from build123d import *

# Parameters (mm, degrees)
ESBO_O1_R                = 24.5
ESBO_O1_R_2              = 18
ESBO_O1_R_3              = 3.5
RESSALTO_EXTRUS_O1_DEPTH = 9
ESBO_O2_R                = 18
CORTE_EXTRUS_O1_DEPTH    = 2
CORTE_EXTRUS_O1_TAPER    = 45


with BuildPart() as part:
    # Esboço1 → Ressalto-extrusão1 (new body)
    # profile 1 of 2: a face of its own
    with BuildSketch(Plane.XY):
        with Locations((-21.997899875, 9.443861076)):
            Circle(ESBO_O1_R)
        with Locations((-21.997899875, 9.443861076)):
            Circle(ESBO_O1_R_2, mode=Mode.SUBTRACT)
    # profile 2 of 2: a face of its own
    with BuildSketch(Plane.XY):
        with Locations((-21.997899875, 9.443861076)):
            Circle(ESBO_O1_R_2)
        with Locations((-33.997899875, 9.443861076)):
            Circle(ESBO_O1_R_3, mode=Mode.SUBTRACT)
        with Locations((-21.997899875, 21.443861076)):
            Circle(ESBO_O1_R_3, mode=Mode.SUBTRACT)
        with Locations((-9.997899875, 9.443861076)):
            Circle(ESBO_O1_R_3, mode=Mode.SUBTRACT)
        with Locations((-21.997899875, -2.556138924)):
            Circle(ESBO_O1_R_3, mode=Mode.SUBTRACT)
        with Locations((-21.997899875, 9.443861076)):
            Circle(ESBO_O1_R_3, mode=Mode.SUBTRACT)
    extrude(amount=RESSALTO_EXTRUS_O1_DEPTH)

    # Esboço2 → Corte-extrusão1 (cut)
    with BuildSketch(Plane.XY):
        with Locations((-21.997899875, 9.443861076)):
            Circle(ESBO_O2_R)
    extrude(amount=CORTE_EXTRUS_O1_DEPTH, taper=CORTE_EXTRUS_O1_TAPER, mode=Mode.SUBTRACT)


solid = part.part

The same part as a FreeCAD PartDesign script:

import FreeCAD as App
import Part
import Sketcher

doc = App.newDocument("Part")
body = doc.addObject("PartDesign::Body", "Body")

# Sketch on XY plane
sketch1 = body.newObject("Sketcher::SketchObject", "Sketch")
sketch1.AttachmentSupport = (doc.getObject("XY_Plane"), [""])
sketch1.MapMode = "FlatFace"
sketch1.addGeometry(Part.Circle(App.Vector(-22, 9.4, 0), App.Vector(0, 0, 1), 24.5), False)
sketch1.addGeometry(Part.Circle(App.Vector(-22, 21.4, 0), App.Vector(0, 0, 1), 3.5), False)
sketch1.addGeometry(Part.Circle(App.Vector(-22, -2.6, 0), App.Vector(0, 0, 1), 3.5), False)
sketch1.addGeometry(Part.Circle(App.Vector(-34, 9.4, 0), App.Vector(0, 0, 1), 3.5), False)
sketch1.addGeometry(Part.Circle(App.Vector(-22, 9.4, 0), App.Vector(0, 0, 1), 3.5), False)
sketch1.addGeometry(Part.Circle(App.Vector(-10, 9.4, 0), App.Vector(0, 0, 1), 3.5), False)
sketch1.addConstraint(Sketcher.Constraint("Coincident", 4, 3, 0, 3))
sketch1.addConstraint(Sketcher.Constraint("Equal", 1, 2))
sketch1.addConstraint(Sketcher.Constraint("Equal", 2, 3))
sketch1.addConstraint(Sketcher.Constraint("Equal", 3, 4))
sketch1.addConstraint(Sketcher.Constraint("Equal", 4, 5))
sketch1.addConstraint(Sketcher.Constraint("Horizontal", 0, 3, 3, 3))
sketch1.addConstraint(Sketcher.Constraint("Horizontal", 4, 3, 5, 3))
sketch1.addConstraint(Sketcher.Constraint("Vertical", 0, 3, 1, 3))
sketch1.addConstraint(Sketcher.Constraint("Vertical", 1, 3, 2, 3))
sketch1.addConstraint(Sketcher.Constraint("Diameter", 0, 49.0))
sketch1.addConstraint(Sketcher.Constraint("Diameter", 1, 7.0))
sketch1.addConstraint(Sketcher.Constraint("DistanceY", 0, 3, 1, 3, 12.0))
sketch1.addConstraint(Sketcher.Constraint("DistanceY", 2, 3, 0, 3, 12.0))
sketch1.addConstraint(Sketcher.Constraint("DistanceX", 3, 3, 0, 3, 12.0))
sketch1.addConstraint(Sketcher.Constraint("DistanceX", 0, 3, 5, 3, 12.0))
sketch1.addConstraint(Sketcher.Constraint("DistanceX", 0, 3, -1, 1, 21.9979))
sketch1.addConstraint(Sketcher.Constraint("DistanceY", -1, 1, 0, 3, 9.443861))
pad1 = body.newObject("PartDesign::Pad", "Pad")
pad1.Profile = sketch1
pad1.Length = 9

# Sketch on XY plane
sketch2 = body.newObject("Sketcher::SketchObject", "Sketch001")
sketch2.AttachmentSupport = (doc.getObject("XY_Plane"), [""])
sketch2.MapMode = "FlatFace"
sketch2.addGeometry(Part.Circle(App.Vector(-22, 9, 0), App.Vector(0, 0, 1), 18), False)
sketch2.addConstraint(Sketcher.Constraint("Diameter", 0, 36.0))
sketch2.addConstraint(Sketcher.Constraint("DistanceX", 0, 3, -1, 1, 21.9979))
sketch2.addConstraint(Sketcher.Constraint("DistanceY", -1, 1, 0, 3, 9.443861))
pocket1 = body.newObject("PartDesign::Pocket", "Pocket")
pocket1.Profile = sketch2
pocket1.Length = 2
pocket1.Reversed = True
pocket1.TaperAngle = -45

doc.recompute()
